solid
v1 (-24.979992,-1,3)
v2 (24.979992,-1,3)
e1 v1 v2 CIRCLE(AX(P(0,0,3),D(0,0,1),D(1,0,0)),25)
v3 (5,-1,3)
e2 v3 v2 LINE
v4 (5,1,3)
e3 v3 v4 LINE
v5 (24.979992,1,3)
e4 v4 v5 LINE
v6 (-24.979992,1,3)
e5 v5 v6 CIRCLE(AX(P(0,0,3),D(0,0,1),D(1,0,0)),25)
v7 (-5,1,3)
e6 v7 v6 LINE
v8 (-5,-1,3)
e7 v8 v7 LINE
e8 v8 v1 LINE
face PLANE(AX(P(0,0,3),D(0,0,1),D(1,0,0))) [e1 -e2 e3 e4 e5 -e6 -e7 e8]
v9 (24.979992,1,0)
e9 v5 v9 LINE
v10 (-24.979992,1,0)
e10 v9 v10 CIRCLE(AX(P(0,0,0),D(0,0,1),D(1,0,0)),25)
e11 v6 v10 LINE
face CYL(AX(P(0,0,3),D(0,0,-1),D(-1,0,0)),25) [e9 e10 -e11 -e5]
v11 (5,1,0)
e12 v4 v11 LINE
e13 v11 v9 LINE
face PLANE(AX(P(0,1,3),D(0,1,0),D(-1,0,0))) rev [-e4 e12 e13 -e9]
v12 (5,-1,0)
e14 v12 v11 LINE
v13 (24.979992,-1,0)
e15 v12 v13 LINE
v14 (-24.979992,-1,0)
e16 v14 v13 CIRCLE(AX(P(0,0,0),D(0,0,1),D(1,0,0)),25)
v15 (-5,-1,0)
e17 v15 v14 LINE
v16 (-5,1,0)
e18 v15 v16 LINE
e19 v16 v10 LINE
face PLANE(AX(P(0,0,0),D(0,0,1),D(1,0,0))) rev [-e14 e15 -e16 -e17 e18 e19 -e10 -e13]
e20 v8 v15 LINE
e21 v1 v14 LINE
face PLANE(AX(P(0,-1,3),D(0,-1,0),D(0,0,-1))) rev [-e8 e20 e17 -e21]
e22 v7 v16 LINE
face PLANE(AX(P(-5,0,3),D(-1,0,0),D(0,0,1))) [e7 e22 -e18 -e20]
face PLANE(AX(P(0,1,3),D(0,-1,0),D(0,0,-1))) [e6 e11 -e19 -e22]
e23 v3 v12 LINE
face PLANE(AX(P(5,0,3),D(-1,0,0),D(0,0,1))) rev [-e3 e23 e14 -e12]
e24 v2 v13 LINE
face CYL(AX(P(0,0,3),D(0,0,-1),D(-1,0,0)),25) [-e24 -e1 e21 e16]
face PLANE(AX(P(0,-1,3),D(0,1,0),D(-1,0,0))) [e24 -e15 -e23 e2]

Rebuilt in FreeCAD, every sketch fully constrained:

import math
import FreeCAD as App
import Part
import Sketcher

V = App.Vector
Q = App.Units.Quantity

doc = App.newDocument("Part")
params = doc.addObject("Spreadsheet::Sheet", "Params")
for row, (alias, value) in enumerate([
    ("sketch1_diameter", "50 mm"),
    ("pad1_length", "3 mm"),
    ("sketch2_radius", "25.000001 mm"),
    ("sketch2_height", "2 mm"),
    ("pocket1_length", "3 mm"),
], start=1):
    params.set(f"A{row}", alias)
    params.set(f"B{row}", "=" + value)
    params.setAlias(f"B{row}", alias)

body = doc.addObject("PartDesign::Body", "Body")

# Sketch on XY plane
sketch1 = body.newObject("Sketcher::SketchObject", "Sketch")
sketch1.AttachmentSupport = (doc.getObject("XY_Plane"), [""])
sketch1.MapMode = "FlatFace"
sketch1.addGeometry(Part.Circle(V(0, 0, 0), V(0, 0, 1), 25), False)
sketch1.addConstraint([
    Sketcher.Constraint("Coincident", 0, 3, -1, 1),
    Sketcher.Constraint("Diameter", 0, Q("50 mm")),
])
sketch1.setExpression("Constraints[1]", "Params.sketch1_diameter")
pad1 = body.newObject("PartDesign::Pad", "Pad")
pad1.Profile = sketch1
pad1.setExpression("Length", "Params.pad1_length")

# Sketch on XY plane
sketch2 = body.newObject("Sketcher::SketchObject", "Sketch001")
sketch2.AttachmentSupport = (doc.getObject("XY_Plane"), [""])
sketch2.MapMode = "FlatFace"
sketch2.addGeometry([
    Part.LineSegment(V(25, -1, 0), V(5, -1, 0)),  # 0
    Part.LineSegment(V(5, -1, 0), V(5, 1, 0)),  # 1
    Part.LineSegment(V(5, 1, 0), V(25, 1, 0)),  # 2
    Part.ArcOfCircle(Part.Circle(V(0, 0, 0), V(0, 0, 1), 25), math.radians(-2.29), math.radians(2.29)),  # 3
    Part.LineSegment(V(-5, 1, 0), V(-5, -1, 0)),  # 4
    Part.LineSegment(V(-5, -1, 0), V(-25, -1, 0)),  # 5
    Part.ArcOfCircle(Part.Circle(V(0, 0, 0), V(0, 0, 1), 25), math.radians(180), math.radians(182.29)),  # 6
    Part.ArcOfCircle(Part.Circle(V(0, 0, 0), V(0, 0, 1), 25), math.radians(177.71), math.radians(180)),  # 7
    Part.LineSegment(V(-25, 1, 0), V(-5, 1, 0)),  # 8
], False)
sketch2.addConstraint([
    Sketcher.Constraint("Coincident", 0, 2, 1, 1),
    Sketcher.Constraint("Coincident", 1, 2, 2, 1),
    Sketcher.Constraint("Coincident", 2, 2, 3, 2),
    Sketcher.Constraint("Coincident", 3, 1, 0, 1),
    Sketcher.Constraint("Coincident", 4, 2, 5, 1),
    Sketcher.Constraint("Coincident", 5, 2, 6, 2),
    Sketcher.Constraint("Tangent", 6, 1, 7, 2),
    Sketcher.Constraint("Coincident", 7, 1, 8, 1),
    Sketcher.Constraint("Coincident", 8, 2, 4, 1),
    Sketcher.Constraint("Horizontal", 0),
    Sketcher.Constraint("Vertical", 1),
    Sketcher.Constraint("Horizontal", 2),
    Sketcher.Constraint("Vertical", 4),
    Sketcher.Constraint("Horizontal", 5),
    Sketcher.Constraint("Horizontal", 8),
    Sketcher.Constraint("Coincident", 3, 3, -1, 1),
    Sketcher.Constraint("Coincident", 6, 3, -1, 1),
    Sketcher.Constraint("Equal", 3, 6),
    Sketcher.Constraint("Equal", 6, 7),
    Sketcher.Constraint("Symmetric", 1, 2, 4, 2, -1, 1),
    Sketcher.Constraint("PointOnObject", 6, 1, -1),
    Sketcher.Constraint("Horizontal", 3, 1, 4, 2),
    Sketcher.Constraint("Horizontal", 2, 2, 7, 1),
    Sketcher.Constraint("Radius", 3, Q("25.000001 mm")),
    Sketcher.Constraint("DistanceY", 1, 1, 1, 2, Q("2 mm")),
    Sketcher.Constraint("DistanceX", -1, 1, 0, 2, Q("5 mm")),
])
sketch2.setExpression("Constraints[23]", "Params.sketch2_radius")
sketch2.setExpression("Constraints[24]", "Params.sketch2_height")
pocket1 = body.newObject("PartDesign::Pocket", "Pocket")
pocket1.Profile = sketch2
pocket1.setExpression("Length", "Params.pocket1_length")
pocket1.Reversed = True

doc.recompute()
